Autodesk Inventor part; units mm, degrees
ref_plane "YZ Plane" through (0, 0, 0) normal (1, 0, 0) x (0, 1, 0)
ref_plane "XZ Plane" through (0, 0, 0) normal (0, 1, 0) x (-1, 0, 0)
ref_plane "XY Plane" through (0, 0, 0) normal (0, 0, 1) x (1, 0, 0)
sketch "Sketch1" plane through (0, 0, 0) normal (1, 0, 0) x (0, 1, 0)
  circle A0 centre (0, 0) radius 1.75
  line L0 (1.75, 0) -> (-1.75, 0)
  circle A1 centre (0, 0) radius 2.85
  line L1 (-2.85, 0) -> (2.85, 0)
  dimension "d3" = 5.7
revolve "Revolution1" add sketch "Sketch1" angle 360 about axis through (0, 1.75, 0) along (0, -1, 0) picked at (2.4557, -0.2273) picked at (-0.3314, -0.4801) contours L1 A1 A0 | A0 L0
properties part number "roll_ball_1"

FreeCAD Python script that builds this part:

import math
import FreeCAD as App
import Part
import Sketcher
from FreeCAD import Vector

doc = App.newDocument("Part")
body = doc.addObject("PartDesign::Body", "Body")

sketch1 = body.newObject("Sketcher::SketchObject", "Sketch")
sketch1.AttachmentSupport = (doc.getObject("YZ_Plane"), [""])
sketch1.MapMode = "FlatFace"
sketch1.addGeometry(Part.LineSegment(Vector(2.9, 0, 0), Vector(-2.9, 0, 0)), False)
sketch1.addGeometry(Part.ArcOfCircle(Part.Circle(Vector(0, 0, 0), Vector(0, 0, 1), 2.9), math.radians(180), math.radians(360)), False)
sketch1.addConstraint(Sketcher.Constraint("Coincident", 0, 1, 1, 2))
sketch1.addConstraint(Sketcher.Constraint("Coincident", 1, 1, 0, 2))
sketch1.addConstraint(Sketcher.Constraint("Horizontal", 0))
sketch1.addConstraint(Sketcher.Constraint("Coincident", 1, 3, -1, 1))
sketch1.addConstraint(Sketcher.Constraint("PointOnObject", 0, 1, -1))
sketch1.addConstraint(Sketcher.Constraint("Radius", 1, 2.85))
revolution = body.newObject("PartDesign::Revolution", "Revolution")
revolution.Profile = sketch1
revolution.ReferenceAxis = (sketch1, ["H_Axis"])
revolution.Angle = 360

doc.recompute()
